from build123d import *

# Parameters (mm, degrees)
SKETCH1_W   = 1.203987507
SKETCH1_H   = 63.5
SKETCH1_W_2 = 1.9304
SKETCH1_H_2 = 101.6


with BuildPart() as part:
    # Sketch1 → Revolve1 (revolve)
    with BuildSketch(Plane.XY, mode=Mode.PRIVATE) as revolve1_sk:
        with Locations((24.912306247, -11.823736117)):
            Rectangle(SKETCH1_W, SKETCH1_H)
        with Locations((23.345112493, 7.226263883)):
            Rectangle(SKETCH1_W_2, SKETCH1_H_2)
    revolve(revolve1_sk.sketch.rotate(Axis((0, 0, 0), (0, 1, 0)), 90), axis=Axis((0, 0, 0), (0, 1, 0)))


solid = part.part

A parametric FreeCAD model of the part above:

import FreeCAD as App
import Part
import Sketcher
from FreeCAD import Vector
Q = App.Units.Quantity

doc = App.newDocument("Part")
params = doc.addObject("Spreadsheet::Sheet", "Params")
for row, (alias, value) in enumerate([
    ("sketch1_height", "4 in"),
    ("sketch1_height2", "2.5 in"),
    ("sketch1_width", "0.076 in"),
    ("revolution_angle", "360 deg"),
], start=1):
    params.set(f"A{row}", alias)
    params.set(f"B{row}", "=" + value)
    params.setAlias(f"B{row}", alias)

body = doc.addObject("PartDesign::Body", "Body")

sketch1 = body.newObject("Sketcher::SketchObject", "Sketch")
sketch1.AttachmentSupport = (doc.getObject("XY_Plane"), [""])
sketch1.MapMode = "FlatFace"
sketch1.addGeometry(Part.LineSegment(Vector(25.5, -43.6, 0), Vector(25.5, 19.9, 0)), False)
sketch1.addGeometry(Part.LineSegment(Vector(25.5, 19.9, 0), Vector(24.3, 19.9, 0)), False)
sketch1.addGeometry(Part.LineSegment(Vector(24.3, 19.9, 0), Vector(24.3, 58, 0)), False)
sketch1.addGeometry(Part.LineSegment(Vector(24.3, 58, 0), Vector(22.4, 58, 0)), False)
sketch1.addGeometry(Part.LineSegment(Vector(22.4, 58, 0), Vector(22.4, -43.6, 0)), False)
sketch1.addGeometry(Part.LineSegment(Vector(22.4, -43.6, 0), Vector(25.5, -43.6, 0)), False)
sketch1.addConstraint(Sketcher.Constraint("Coincident", 0, 2, 1, 1))
sketch1.addConstraint(Sketcher.Constraint("Coincident", 1, 2, 2, 1))
sketch1.addConstraint(Sketcher.Constraint("Coincident", 2, 2, 3, 1))
sketch1.addConstraint(Sketcher.Constraint("Coincident", 3, 2, 4, 1))
sketch1.addConstraint(Sketcher.Constraint("Coincident", 4, 2, 5, 1))
sketch1.addConstraint(Sketcher.Constraint("Coincident", 5, 2, 0, 1))
sketch1.addConstraint(Sketcher.Constraint("Vertical", 0))
sketch1.addConstraint(Sketcher.Constraint("Horizontal", 1))
sketch1.addConstraint(Sketcher.Constraint("Vertical", 2))
sketch1.addConstraint(Sketcher.Constraint("Horizontal", 3))
sketch1.addConstraint(Sketcher.Constraint("Vertical", 4))
sketch1.addConstraint(Sketcher.Constraint("Horizontal", 5))
sketch1.addConstraint(Sketcher.Constraint("DistanceY", 4, 2, 4, 1, Q("4 in")))
sketch1.addConstraint(Sketcher.Constraint("DistanceY", 0, 1, 0, 2, Q("2.5 in")))
sketch1.addConstraint(Sketcher.Constraint("DistanceX", 3, 2, 3, 1, Q("0.076 in")))
sketch1.addConstraint(Sketcher.Constraint("DistanceX", -1, 1, 0, 2, Q("1.0045 in")))
sketch1.addConstraint(Sketcher.Constraint("DistanceX", 1, 2, 1, 1, 1.203988))
sketch1.addConstraint(Sketcher.Constraint("DistanceY", -1, 1, 0, 2, 19.926264))
sketch1.setExpression("Constraints[12]", "Params.sketch1_height")
sketch1.setExpression("Constraints[13]", "Params.sketch1_height2")
sketch1.setExpression("Constraints[14]", "Params.sketch1_width")
revolution = body.newObject("PartDesign::Revolution", "Revolution")
revolution.Profile = sketch1
revolution.ReferenceAxis = (sketch1, ["V_Axis"])
revolution.setExpression("Angle", "Params.revolution_angle")

doc.recompute()
